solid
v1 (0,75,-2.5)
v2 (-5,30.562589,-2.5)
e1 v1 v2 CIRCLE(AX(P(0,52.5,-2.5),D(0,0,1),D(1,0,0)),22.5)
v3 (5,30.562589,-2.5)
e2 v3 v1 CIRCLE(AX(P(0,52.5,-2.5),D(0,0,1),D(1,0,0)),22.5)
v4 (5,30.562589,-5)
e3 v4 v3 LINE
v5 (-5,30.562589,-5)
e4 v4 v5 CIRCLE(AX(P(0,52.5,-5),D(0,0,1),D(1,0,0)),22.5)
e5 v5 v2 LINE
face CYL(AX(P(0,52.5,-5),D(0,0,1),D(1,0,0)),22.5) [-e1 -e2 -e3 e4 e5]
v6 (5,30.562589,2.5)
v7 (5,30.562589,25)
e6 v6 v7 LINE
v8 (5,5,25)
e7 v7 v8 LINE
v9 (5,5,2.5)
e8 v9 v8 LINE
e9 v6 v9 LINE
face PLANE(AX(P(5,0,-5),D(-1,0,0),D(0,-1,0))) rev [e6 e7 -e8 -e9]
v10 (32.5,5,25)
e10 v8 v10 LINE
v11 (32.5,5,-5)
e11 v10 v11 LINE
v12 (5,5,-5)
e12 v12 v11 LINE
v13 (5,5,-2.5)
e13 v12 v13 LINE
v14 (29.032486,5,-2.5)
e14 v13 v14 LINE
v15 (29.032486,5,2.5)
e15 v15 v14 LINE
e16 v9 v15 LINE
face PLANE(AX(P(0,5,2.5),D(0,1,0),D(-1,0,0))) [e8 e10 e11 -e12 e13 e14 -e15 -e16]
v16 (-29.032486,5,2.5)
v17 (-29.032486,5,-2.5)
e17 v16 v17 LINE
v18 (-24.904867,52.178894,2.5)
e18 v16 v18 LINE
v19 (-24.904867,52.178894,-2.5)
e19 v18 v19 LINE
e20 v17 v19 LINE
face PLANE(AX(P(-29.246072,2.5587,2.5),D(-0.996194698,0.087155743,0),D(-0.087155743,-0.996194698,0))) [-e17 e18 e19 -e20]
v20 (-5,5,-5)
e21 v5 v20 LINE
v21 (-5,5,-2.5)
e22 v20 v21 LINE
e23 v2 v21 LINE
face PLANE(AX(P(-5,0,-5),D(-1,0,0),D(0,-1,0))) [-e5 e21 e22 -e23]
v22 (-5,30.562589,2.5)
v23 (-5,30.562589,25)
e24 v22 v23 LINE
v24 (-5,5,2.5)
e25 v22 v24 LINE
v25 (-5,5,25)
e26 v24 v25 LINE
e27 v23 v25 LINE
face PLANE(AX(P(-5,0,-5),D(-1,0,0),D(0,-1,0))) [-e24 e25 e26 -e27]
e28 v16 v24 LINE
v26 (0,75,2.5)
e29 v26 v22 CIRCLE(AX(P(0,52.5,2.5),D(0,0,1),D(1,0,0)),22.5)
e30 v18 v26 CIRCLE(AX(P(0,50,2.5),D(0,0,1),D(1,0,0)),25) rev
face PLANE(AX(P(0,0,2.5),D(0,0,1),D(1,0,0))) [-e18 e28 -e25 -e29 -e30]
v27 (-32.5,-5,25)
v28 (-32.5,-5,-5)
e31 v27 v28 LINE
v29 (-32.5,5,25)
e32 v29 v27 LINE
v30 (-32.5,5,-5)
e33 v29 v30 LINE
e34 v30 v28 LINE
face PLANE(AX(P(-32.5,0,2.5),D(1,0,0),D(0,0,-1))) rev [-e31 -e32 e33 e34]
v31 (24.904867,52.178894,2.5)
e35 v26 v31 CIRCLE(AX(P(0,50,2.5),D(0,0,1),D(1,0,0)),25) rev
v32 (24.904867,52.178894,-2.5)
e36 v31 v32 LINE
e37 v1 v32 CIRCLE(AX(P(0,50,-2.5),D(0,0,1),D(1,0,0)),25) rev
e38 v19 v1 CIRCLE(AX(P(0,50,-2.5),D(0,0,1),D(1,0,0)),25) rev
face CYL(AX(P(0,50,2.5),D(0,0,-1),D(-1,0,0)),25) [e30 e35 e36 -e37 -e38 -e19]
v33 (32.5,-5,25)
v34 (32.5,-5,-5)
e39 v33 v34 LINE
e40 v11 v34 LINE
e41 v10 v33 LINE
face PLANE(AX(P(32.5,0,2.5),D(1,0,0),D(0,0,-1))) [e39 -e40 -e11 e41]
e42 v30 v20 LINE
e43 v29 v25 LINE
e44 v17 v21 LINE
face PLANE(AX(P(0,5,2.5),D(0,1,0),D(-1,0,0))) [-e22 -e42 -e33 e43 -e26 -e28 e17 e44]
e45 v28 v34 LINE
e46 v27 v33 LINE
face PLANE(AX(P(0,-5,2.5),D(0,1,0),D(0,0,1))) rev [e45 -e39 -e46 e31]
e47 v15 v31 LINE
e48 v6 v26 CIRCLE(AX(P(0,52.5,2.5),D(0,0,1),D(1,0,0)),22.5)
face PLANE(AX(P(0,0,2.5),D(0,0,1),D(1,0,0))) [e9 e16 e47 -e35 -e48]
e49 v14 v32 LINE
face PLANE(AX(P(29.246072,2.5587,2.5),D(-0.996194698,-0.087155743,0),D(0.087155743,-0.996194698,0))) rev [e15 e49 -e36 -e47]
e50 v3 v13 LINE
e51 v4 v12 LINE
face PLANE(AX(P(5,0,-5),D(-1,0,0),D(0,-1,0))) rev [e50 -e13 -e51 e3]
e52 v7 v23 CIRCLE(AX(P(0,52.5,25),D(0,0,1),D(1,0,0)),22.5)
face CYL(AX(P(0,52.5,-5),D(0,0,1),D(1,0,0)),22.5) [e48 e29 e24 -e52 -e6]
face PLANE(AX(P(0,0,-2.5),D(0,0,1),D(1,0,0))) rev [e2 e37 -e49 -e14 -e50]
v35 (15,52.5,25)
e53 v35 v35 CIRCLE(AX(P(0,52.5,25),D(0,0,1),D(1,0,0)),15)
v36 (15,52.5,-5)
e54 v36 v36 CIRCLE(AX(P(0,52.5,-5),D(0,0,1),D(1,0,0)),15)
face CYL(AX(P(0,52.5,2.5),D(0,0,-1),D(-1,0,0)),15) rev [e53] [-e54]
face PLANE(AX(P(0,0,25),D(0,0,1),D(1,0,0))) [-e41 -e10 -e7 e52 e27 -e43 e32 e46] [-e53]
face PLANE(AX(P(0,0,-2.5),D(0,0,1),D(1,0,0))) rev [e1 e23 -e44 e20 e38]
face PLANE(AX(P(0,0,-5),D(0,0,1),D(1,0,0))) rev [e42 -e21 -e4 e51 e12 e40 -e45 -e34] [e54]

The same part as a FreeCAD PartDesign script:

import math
import FreeCAD as App
import Part
import Sketcher
from FreeCAD import Vector
Q = App.Units.Quantity

doc = App.newDocument("Part")
params = doc.addObject("Spreadsheet::Sheet", "Params")
for row, (alias, value) in enumerate([
    ("sketch1_diameter", "30 mm"),
    ("sketch1_radius", "25 mm"),
    ("sketch1_width", "65 mm"),
    ("sketch1_height", "10 mm"),
    ("pad1_length", "5 mm"),
    ("sketch2_diameter", "30 mm"),
    ("sketch2_radius", "22.5 mm"),
    ("sketch2_width", "65 mm"),
    ("sketch2_height", "10 mm"),
    ("sketch2_width2", "27.5 mm"),
    ("pad2_length", "25 mm"),
    ("pad2_length2", "5 mm"),
], start=1):
    params.set(f"A{row}", alias)
    params.set(f"B{row}", "=" + value)
    params.setAlias(f"B{row}", alias)

body = doc.addObject("PartDesign::Body", "Body")

# Sketch on XY plane
sketch1 = body.newObject("Sketcher::SketchObject", "Sketch")
sketch1.AttachmentSupport = (doc.getObject("XY_Plane"), [""])
sketch1.MapMode = "FlatFace"
sketch1.addGeometry(Part.LineSegment(Vector(32.5, 5, 0), Vector(29, 5, 0)), False)
sketch1.addGeometry(Part.LineSegment(Vector(29, 5, 0), Vector(24.9, 52.2, 0)), False)
sketch1.addGeometry(Part.ArcOfCircle(Part.Circle(Vector(0, 50, 0), Vector(0, 0, 1), 25), math.radians(5), math.radians(90)), False)
sketch1.addGeometry(Part.ArcOfCircle(Part.Circle(Vector(0, 50, 0), Vector(0, 0, 1), 25), math.radians(90), math.radians(175)), False)
sketch1.addGeometry(Part.LineSegment(Vector(-24.9, 52.2, 0), Vector(-29, 5, 0)), False)
sketch1.addGeometry(Part.LineSegment(Vector(-29, 5, 0), Vector(-32.5, 5, 0)), False)
sketch1.addGeometry(Part.LineSegment(Vector(-32.5, 5, 0), Vector(-32.5, -5, 0)), False)
sketch1.addGeometry(Part.LineSegment(Vector(-32.5, -5, 0), Vector(32.5, -5, 0)), False)
sketch1.addGeometry(Part.LineSegment(Vector(32.5, -5, 0), Vector(32.5, 5, 0)), False)
sketch1.addGeometry(Part.Circle(Vector(0, 52.5, 0), Vector(0, 0, 1), 15), False)
sketch1.addConstraint(Sketcher.Constraint("Coincident", 0, 2, 1, 1))
sketch1.addConstraint(Sketcher.Constraint("Tangent", 1, 2, 2, 1))
sketch1.addConstraint(Sketcher.Constraint("Tangent", 2, 2, 3, 1))
sketch1.addConstraint(Sketcher.Constraint("Tangent", 3, 2, 4, 1))
sketch1.addConstraint(Sketcher.Constraint("Coincident", 4, 2, 5, 1))
sketch1.addConstraint(Sketcher.Constraint("Coincident", 5, 2, 6, 1))
sketch1.addConstraint(Sketcher.Constraint("Coincident", 6, 2, 7, 1))
sketch1.addConstraint(Sketcher.Constraint("Coincident", 7, 2, 8, 1))
sketch1.addConstraint(Sketcher.Constraint("Coincident", 8, 2, 0, 1))
sketch1.addConstraint(Sketcher.Constraint("Horizontal", 0))
sketch1.addConstraint(Sketcher.Constraint("Horizontal", 5))
sketch1.addConstraint(Sketcher.Constraint("Vertical", 6))
sketch1.addConstraint(Sketcher.Constraint("Horizontal", 7))
sketch1.addConstraint(Sketcher.Constraint("Vertical", 8))
sketch1.addConstraint(Sketcher.Constraint("Equal", 2, 3))
sketch1.addConstraint(Sketcher.Constraint("Symmetric", 5, 2, 7, 2, -1, 1))
sketch1.addConstraint(Sketcher.Constraint("Symmetric", 1, 2, 3, 2, -2))
sketch1.addConstraint(Sketcher.Constraint("PointOnObject", 9, 3, -2))
sketch1.addConstraint(Sketcher.Constraint("PointOnObject", 2, 2, -2))
sketch1.addConstraint(Sketcher.Constraint("Horizontal", 0, 2, 4, 2))
sketch1.addConstraint(Sketcher.Constraint("Diameter", 9, Q("30 mm")))
sketch1.addConstraint(Sketcher.Constraint("Radius", 2, Q("25 mm")))
sketch1.addConstraint(Sketcher.Constraint("DistanceX", 7, 1, 7, 2, Q("65 mm")))
sketch1.addConstraint(Sketcher.Constraint("DistanceY", 6, 2, 6, 1, Q("10 mm")))
sketch1.addConstraint(Sketcher.Constraint("Angle", 1, Q("95 deg")))
sketch1.addConstraint(Sketcher.Constraint("DistanceY", -1, 1, 2, 3, Q("50 mm")))
sketch1.addConstraint(Sketcher.Constraint("DistanceY", -1, 1, 9, 3, Q("52.5 mm")))
sketch1.setExpression("Constraints[20]", "Params.sketch1_diameter")
sketch1.setExpression("Constraints[21]", "Params.sketch1_radius")
sketch1.setExpression("Constraints[22]", "Params.sketch1_width")
sketch1.setExpression("Constraints[23]", "Params.sketch1_height")
pad1 = body.newObject("PartDesign::Pad", "Pad")
pad1.Profile = sketch1
pad1.setExpression("Length", "Params.pad1_length")
pad1.Midplane = True

# Sketch on XY plane
sketch2 = body.newObject("Sketcher::SketchObject", "Sketch001")
sketch2.AttachmentSupport = (doc.getObject("XY_Plane"), [""])
sketch2.MapMode = "FlatFace"
sketch2.addGeometry(Part.LineSegment(Vector(5, 5, 0), Vector(5, 31, 0)), False)
sketch2.addGeometry(Part.ArcOfCircle(Part.Circle(Vector(0, 52, 0), Vector(0, 0, 1), 22), math.radians(-77), math.radians(257)), False)
sketch2.addGeometry(Part.LineSegment(Vector(-5, 31, 0), Vector(-5, 5, 0)), False)
sketch2.addGeometry(Part.LineSegment(Vector(-5, 5, 0), Vector(-32, 5, 0)), False)
sketch2.addGeometry(Part.LineSegment(Vector(-32, 5, 0), Vector(-32, -5, 0)), False)
sketch2.addGeometry(Part.LineSegment(Vector(-32, -5, 0), Vector(32, -5, 0)), False)
sketch2.addGeometry(Part.LineSegment(Vector(32, -5, 0), Vector(32, 5, 0)), False)
sketch2.addGeometry(Part.LineSegment(Vector(32, 5, 0), Vector(5, 5, 0)), False)
sketch2.addGeometry(Part.Circle(Vector(0, 52, 0), Vector(0, 0, 1), 15), False)
sketch2.addConstraint(Sketcher.Constraint("Coincident", 0, 2, 1, 1))
sketch2.addConstraint(Sketcher.Constraint("Coincident", 1, 2, 2, 1))
sketch2.addConstraint(Sketcher.Constraint("Coincident", 2, 2, 3, 1))
sketch2.addConstraint(Sketcher.Constraint("Coincident", 3, 2, 4, 1))
sketch2.addConstraint(Sketcher.Constraint("Coincident", 4, 2, 5, 1))
sketch2.addConstraint(Sketcher.Constraint("Coincident", 5, 2, 6, 1))
sketch2.addConstraint(Sketcher.Constraint("Coincident", 6, 2, 7, 1))
sketch2.addConstraint(Sketcher.Constraint("Coincident", 7, 2, 0, 1))
sketch2.addConstraint(Sketcher.Constraint("Vertical", 0))
sketch2.addConstraint(Sketcher.Constraint("Vertical", 2))
sketch2.addConstraint(Sketcher.Constraint("Horizontal", 3))
sketch2.addConstraint(Sketcher.Constraint("Vertical", 4))
sketch2.addConstraint(Sketcher.Constraint("Horizontal", 5))
sketch2.addConstraint(Sketcher.Constraint("Vertical", 6))
sketch2.addConstraint(Sketcher.Constraint("Horizontal", 7))
sketch2.addConstraint(Sketcher.Constraint("Coincident", 8, 3, 1, 3))
sketch2.addConstraint(Sketcher.Constraint("Symmetric", 3, 2, 5, 2, -1, 1))
sketch2.addConstraint(Sketcher.Constraint("Symmetric", 0, 2, 1, 2, -2))
sketch2.addConstraint(Sketcher.Constraint("Horizontal", 3, 2, 6, 2))
sketch2.addConstraint(Sketcher.Constraint("Diameter", 8, Q("30 mm")))
sketch2.addConstraint(Sketcher.Constraint("Radius", 1, Q("22.5 mm")))
sketch2.addConstraint(Sketcher.Constraint("DistanceX", 5, 1, 5, 2, Q("65 mm")))
sketch2.addConstraint(Sketcher.Constraint("DistanceY", 4, 2, 4, 1, Q("10 mm")))
sketch2.addConstraint(Sketcher.Constraint("DistanceX", 3, 2, 3, 1, Q("27.5 mm")))
sketch2.addConstraint(Sketcher.Constraint("DistanceY", -1, 1, 1, 3, Q("52.5 mm")))
sketch2.setExpression("Constraints[19]", "Params.sketch2_diameter")
sketch2.setExpression("Constraints[20]", "Params.sketch2_radius")
sketch2.setExpression("Constraints[21]", "Params.sketch2_width")
sketch2.setExpression("Constraints[22]", "Params.sketch2_height")
sketch2.setExpression("Constraints[23]", "Params.sketch2_width2")
pad2 = body.newObject("PartDesign::Pad", "Pad001")
pad2.Profile = sketch2
pad2.Type = "TwoLengths"
pad2.setExpression("Length", "Params.pad2_length")
pad2.setExpression("Length2", "Params.pad2_length2")

doc.recompute()
